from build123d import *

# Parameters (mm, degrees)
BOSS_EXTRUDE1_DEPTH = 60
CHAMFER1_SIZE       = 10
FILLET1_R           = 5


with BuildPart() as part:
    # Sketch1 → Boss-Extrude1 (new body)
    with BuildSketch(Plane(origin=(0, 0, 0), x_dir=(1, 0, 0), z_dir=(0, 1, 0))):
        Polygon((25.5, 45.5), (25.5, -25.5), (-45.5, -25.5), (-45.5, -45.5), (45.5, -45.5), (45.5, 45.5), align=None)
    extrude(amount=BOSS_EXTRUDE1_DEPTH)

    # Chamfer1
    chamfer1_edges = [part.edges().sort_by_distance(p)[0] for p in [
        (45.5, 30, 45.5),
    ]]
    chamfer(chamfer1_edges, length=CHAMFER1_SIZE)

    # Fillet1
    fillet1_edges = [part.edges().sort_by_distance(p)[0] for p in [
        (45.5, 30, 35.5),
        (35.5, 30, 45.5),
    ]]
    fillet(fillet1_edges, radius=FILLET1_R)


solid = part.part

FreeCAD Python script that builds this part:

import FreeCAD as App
import Part
import Sketcher
Q = App.Units.Quantity


def edges_at(feature, points):
    """Names of the edges that pass closest to the given points."""
    edges = feature.Shape.Edges
    near = lambda p: min(range(len(edges)), key=lambda i: edges[i].distToShape(Part.Vertex(*p))[0])
    return sorted({f"Edge{near(p) + 1}" for p in points})


def add_polygon(sketch, points):
    """Adds a closed chain of lines whose ends are joined by coincident constraints."""
    first, n = sketch.GeometryCount, len(points)
    for a, b in zip(points, points[1:] + points[:1]):
        sketch.addGeometry(Part.LineSegment(App.Vector(*a, 0), App.Vector(*b, 0)), False)
    for i in range(n):
        sketch.addConstraint(Sketcher.Constraint("Coincident", first + i, 2, first + (i + 1) % n, 1))

doc = App.newDocument("Part")
body = doc.addObject("PartDesign::Body", "Body")

# Sketch on XZ plane
sketch1 = body.newObject("Sketcher::SketchObject", "Sketch")
sketch1.AttachmentSupport = (doc.getObject("XZ_Plane"), [""])
sketch1.MapMode = "FlatFace"
add_polygon(sketch1, [(26, -46), (26, 26), (-46, 26), (-46, 46), (46, 46), (46, -46)])  # lines 0-5
sketch1.addConstraint([
    Sketcher.Constraint("Vertical", 0),
    Sketcher.Constraint("Horizontal", 1),
    Sketcher.Constraint("Vertical", 2),
    Sketcher.Constraint("Horizontal", 3),
    Sketcher.Constraint("Vertical", 4),
    Sketcher.Constraint("Horizontal", 5),
    Sketcher.Constraint("Symmetric", 2, 2, 4, 2, -1, 1),
    Sketcher.Constraint("Equal", 1, 0),
    Sketcher.Constraint("Equal", 5, 2),
    Sketcher.Constraint("DistanceX", 1, 2, 1, 1, Q("71 mm")),
    Sketcher.Constraint("DistanceX", 3, 1, 3, 2, Q("91 mm")),
])
pad1 = body.newObject("PartDesign::Pad", "Pad")
pad1.Profile = sketch1
pad1.Length = 60
pad1.Reversed = True
doc.recompute()

chamfer = body.newObject("PartDesign::Chamfer", "Chamfer")
chamfer.Base = (pad1, edges_at(pad1, [(45.5, 30, 45.5)]))
chamfer.Size = 10
doc.recompute()

fillet = body.newObject("PartDesign::Fillet", "Fillet")
fillet.Base = (chamfer, edges_at(chamfer, [(45.5, 30, 35.5), (35.5, 30, 45.5)]))
fillet.Radius = 5

doc.recompute()
